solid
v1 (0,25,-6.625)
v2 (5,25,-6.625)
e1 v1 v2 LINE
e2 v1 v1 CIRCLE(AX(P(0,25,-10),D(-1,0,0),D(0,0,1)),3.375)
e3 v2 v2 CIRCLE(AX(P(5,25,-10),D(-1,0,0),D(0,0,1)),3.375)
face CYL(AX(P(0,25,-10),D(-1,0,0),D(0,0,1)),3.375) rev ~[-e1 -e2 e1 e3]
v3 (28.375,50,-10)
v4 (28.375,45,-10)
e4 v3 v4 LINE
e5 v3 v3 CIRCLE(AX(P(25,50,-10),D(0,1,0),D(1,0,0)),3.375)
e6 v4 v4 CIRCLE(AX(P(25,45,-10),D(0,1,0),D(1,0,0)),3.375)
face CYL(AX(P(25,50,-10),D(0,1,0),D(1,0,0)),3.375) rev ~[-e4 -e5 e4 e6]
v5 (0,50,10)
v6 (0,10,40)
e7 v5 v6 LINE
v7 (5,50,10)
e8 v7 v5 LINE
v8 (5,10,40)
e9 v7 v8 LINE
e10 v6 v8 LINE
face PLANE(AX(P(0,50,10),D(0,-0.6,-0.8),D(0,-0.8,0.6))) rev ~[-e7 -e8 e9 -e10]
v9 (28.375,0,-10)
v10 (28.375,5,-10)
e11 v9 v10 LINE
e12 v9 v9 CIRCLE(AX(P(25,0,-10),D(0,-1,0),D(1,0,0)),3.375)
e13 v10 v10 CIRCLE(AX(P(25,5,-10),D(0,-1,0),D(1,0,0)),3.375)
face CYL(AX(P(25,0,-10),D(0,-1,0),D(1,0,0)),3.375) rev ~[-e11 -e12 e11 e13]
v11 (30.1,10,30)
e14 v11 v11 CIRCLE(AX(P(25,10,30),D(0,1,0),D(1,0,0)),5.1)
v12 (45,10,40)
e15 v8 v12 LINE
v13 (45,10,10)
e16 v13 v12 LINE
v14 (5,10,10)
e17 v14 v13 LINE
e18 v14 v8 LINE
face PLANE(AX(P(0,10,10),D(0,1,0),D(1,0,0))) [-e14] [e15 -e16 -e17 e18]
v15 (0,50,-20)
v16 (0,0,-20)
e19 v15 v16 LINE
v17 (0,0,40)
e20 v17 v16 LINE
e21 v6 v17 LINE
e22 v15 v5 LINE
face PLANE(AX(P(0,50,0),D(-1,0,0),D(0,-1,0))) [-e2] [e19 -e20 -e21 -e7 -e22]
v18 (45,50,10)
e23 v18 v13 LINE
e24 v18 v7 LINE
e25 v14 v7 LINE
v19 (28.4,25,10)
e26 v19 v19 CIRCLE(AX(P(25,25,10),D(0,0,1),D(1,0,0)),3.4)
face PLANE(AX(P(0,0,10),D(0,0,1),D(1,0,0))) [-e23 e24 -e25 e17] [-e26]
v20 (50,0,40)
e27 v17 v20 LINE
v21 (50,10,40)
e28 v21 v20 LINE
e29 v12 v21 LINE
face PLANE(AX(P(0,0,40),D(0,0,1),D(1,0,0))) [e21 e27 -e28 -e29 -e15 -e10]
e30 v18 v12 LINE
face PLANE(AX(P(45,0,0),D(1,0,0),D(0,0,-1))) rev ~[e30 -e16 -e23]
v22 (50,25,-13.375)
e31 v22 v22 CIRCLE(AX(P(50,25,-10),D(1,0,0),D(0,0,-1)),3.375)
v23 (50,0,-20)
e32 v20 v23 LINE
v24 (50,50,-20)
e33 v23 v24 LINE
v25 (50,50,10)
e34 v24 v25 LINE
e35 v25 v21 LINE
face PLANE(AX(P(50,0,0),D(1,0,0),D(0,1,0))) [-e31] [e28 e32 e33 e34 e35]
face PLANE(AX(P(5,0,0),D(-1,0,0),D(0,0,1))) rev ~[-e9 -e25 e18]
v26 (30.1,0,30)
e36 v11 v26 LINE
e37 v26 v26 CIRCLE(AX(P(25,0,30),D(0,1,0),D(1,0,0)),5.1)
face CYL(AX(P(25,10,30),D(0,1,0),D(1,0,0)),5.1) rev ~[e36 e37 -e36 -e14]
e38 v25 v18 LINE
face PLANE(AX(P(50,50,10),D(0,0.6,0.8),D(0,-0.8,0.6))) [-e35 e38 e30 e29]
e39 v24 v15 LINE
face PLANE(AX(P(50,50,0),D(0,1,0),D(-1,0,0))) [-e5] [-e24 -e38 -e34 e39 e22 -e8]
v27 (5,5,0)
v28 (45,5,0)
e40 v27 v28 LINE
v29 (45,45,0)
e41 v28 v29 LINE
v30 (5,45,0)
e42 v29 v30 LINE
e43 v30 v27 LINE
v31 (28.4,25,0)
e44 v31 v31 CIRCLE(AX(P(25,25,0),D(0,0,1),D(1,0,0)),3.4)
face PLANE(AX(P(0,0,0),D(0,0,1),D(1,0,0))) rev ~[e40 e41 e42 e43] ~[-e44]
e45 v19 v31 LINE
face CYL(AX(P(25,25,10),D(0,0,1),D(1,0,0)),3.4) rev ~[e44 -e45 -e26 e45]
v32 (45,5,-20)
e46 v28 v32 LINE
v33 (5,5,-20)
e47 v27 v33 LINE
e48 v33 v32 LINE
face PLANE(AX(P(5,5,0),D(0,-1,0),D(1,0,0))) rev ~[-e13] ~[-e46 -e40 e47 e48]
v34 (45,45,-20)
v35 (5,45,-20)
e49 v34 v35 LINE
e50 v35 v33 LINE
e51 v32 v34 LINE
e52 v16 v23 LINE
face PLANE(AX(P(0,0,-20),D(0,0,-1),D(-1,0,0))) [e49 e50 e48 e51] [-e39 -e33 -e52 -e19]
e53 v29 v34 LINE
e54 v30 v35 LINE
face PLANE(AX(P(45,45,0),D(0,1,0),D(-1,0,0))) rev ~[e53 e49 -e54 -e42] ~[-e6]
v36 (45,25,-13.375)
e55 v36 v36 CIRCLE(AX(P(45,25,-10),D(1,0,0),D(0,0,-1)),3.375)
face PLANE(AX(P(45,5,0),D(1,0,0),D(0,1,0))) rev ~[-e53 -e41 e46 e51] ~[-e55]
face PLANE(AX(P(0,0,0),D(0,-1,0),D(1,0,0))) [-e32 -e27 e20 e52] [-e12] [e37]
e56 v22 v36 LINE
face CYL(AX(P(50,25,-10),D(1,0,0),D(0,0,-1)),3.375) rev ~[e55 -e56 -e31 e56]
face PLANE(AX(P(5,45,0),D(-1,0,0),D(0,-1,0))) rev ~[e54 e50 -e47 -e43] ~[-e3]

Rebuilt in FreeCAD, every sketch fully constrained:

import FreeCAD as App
import Part
import Sketcher

V = App.Vector
Q = App.Units.Quantity

doc = App.newDocument("Part")
body = doc.addObject("PartDesign::Body", "Body")

sketch1 = doc.addObject("Sketcher::SketchObject", "Sketch")
body.addObject(sketch1)
sketch1.AttachmentSupport = (doc.XY_Plane, [""])
sketch1.MapMode = "FlatFace"
sketch1.addGeometry([
    Part.LineSegment(V(0, 0, 0), V(50, 0, 0)),
    Part.LineSegment(V(50, 0, 0), V(50, 50, 0)),
    Part.LineSegment(V(50, 50, 0), V(0, 50, 0)),
    Part.LineSegment(V(0, 50, 0), V(0, 0, 0)),
], False)
sketch1.addConstraint([
    Sketcher.Constraint("Coincident", 0, 2, 1, 1),
    Sketcher.Constraint("Coincident", 1, 2, 2, 1),
    Sketcher.Constraint("Coincident", 2, 2, 3, 1),
    Sketcher.Constraint("Coincident", 3, 2, 0, 1),
    Sketcher.Constraint("Horizontal", 0),
    Sketcher.Constraint("Vertical", 1),
    Sketcher.Constraint("Horizontal", 2),
    Sketcher.Constraint("Vertical", 3),
    Sketcher.Constraint("Coincident", 3, 2, -1, 1),
    Sketcher.Constraint("Equal", 2, 1),
    Sketcher.Constraint("DistanceX", 0, 1, 0, 2, Q("50 mm")),
])
pad1 = doc.addObject("PartDesign::Pad", "Pad")
body.addObject(pad1)
pad1.Profile = sketch1
pad1.Length = 10

sketch2 = doc.addObject("Sketcher::SketchObject", "Sketch001")
body.addObject(sketch2)
sketch2.AttachmentSupport = (doc.XY_Plane, [""])
sketch2.MapMode = "FlatFace"
sketch2.AttachmentOffset = App.Placement(V(0, 0, 10), App.Rotation())
sketch2.addGeometry([
    Part.LineSegment(V(0, 10, 0), V(0, 0, 0)),
    Part.LineSegment(V(0, 0, 0), V(50, 0, 0)),
    Part.LineSegment(V(50, 0, 0), V(50, 10, 0)),
    Part.LineSegment(V(50, 10, 0), V(0, 10, 0)),
], False)
sketch2.addConstraint([
    Sketcher.Constraint("Coincident", 0, 2, 1, 1),
    Sketcher.Constraint("Coincident", 1, 2, 2, 1),
    Sketcher.Constraint("Coincident", 2, 2, 3, 1),
    Sketcher.Constraint("Coincident", 3, 2, 0, 1),
    Sketcher.Constraint("Vertical", 0),
    Sketcher.Constraint("Horizontal", 1),
    Sketcher.Constraint("Vertical", 2),
    Sketcher.Constraint("Horizontal", 3),
    Sketcher.Constraint("Coincident", 0, 2, -1, 1),
    Sketcher.Constraint("DistanceY", 0, 2, 0, 1, Q("10 mm")),
    Sketcher.Constraint("DistanceX", 1, 1, 1, 2, Q("50 mm")),
])
pad2 = doc.addObject("PartDesign::Pad", "Pad001")
body.addObject(pad2)
pad2.Profile = sketch2
pad2.Length = 30

sketch3 = doc.addObject("Sketcher::SketchObject", "Sketch002")
body.addObject(sketch3)
sketch3.AttachmentSupport = (doc.XY_Plane, [""])
sketch3.MapMode = "FlatFace"
sketch3.AttachmentOffset = App.Placement(V(0, 0, 10), App.Rotation())
sketch3.addGeometry(Part.Circle(V(25, 25, 0), V(0, 0, 1), 3.4), False)
sketch3.addConstraint([
    Sketcher.Constraint("Diameter", 0, Q("6.8 mm")),
    Sketcher.Constraint("DistanceX", -1, 1, 0, 3, Q("25 mm")),
    Sketcher.Constraint("DistanceY", -1, 1, 0, 3, Q("25 mm")),
])
pocket1 = doc.addObject("PartDesign::Pocket", "Pocket")
body.addObject(pocket1)
pocket1.Profile = sketch3
pocket1.Length = 10

sketch4 = doc.addObject("Sketcher::SketchObject", "Sketch003")
body.addObject(sketch4)
sketch4.AttachmentSupport = (doc.XZ_Plane, [""])
sketch4.MapMode = "FlatFace"
sketch4.AttachmentOffset = App.Placement(V(0, 0, -10), App.Rotation())
sketch4.addGeometry(Part.Circle(V(25, 30, 0), V(0, 0, 1), 5), False)
sketch4.addConstraint([
    Sketcher.Constraint("Diameter", 0, Q("10.2 mm")),
    Sketcher.Constraint("DistanceX", -1, 1, 0, 3, Q("25 mm")),
    Sketcher.Constraint("DistanceY", -1, 1, 0, 3, Q("30 mm")),
])
pocket2 = doc.addObject("PartDesign::Pocket", "Pocket001")
body.addObject(pocket2)
pocket2.Profile = sketch4
pocket2.Length = 10
pocket2.Reversed = True

sketch5 = doc.addObject("Sketcher::SketchObject", "Sketch004")
body.addObject(sketch5)
sketch5.AttachmentSupport = (doc.YZ_Plane, [""])
sketch5.MapMode = "FlatFace"
sketch5.addGeometry([
    Part.LineSegment(V(50, 10, 0), V(10, 10, 0)),
    Part.LineSegment(V(10, 10, 0), V(10, 40, 0)),
    Part.LineSegment(V(10, 40, 0), V(50, 10, 0)),
], False)
sketch5.addConstraint([
    Sketcher.Constraint("Coincident", 0, 2, 1, 1),
    Sketcher.Constraint("Coincident", 1, 2, 2, 1),
    Sketcher.Constraint("Coincident", 2, 2, 0, 1),
    Sketcher.Constraint("Horizontal", 0),
    Sketcher.Constraint("Vertical", 1),
    Sketcher.Constraint("DistanceX", 0, 2, 0, 1, Q("40 mm")),
    Sketcher.Constraint("DistanceY", 1, 1, 1, 2, Q("30 mm")),
    Sketcher.Constraint("DistanceX", -1, 1, 0, 2, Q("10 mm")),
    Sketcher.Constraint("DistanceY", -1, 1, 0, 2, Q("10 mm")),
])
pad3 = doc.addObject("PartDesign::Pad", "Pad002")
body.addObject(pad3)
pad3.Profile = sketch5
pad3.Length = 5

sketch6 = doc.addObject("Sketcher::SketchObject", "Sketch005")
body.addObject(sketch6)
sketch6.AttachmentSupport = (doc.YZ_Plane, [""])
sketch6.MapMode = "FlatFace"
sketch6.AttachmentOffset = App.Placement(V(0, 0, 50), App.Rotation())
sketch6.addGeometry([
    Part.LineSegment(V(10, 10, 0), V(50, 10, 0)),
    Part.LineSegment(V(50, 10, 0), V(10, 40, 0)),
    Part.LineSegment(V(10, 40, 0), V(10, 10, 0)),
], False)
sketch6.addConstraint([
    Sketcher.Constraint("Coincident", 0, 2, 1, 1),
    Sketcher.Constraint("Coincident", 1, 2, 2, 1),
    Sketcher.Constraint("Coincident", 2, 2, 0, 1),
    Sketcher.Constraint("Horizontal", 0),
    Sketcher.Constraint("Vertical", 2),
    Sketcher.Constraint("DistanceX", 0, 1, 0, 2, Q("40 mm")),
    Sketcher.Constraint("DistanceY", 2, 2, 2, 1, Q("30 mm")),
    Sketcher.Constraint("DistanceX", -1, 1, 0, 2, Q("50 mm")),
    Sketcher.Constraint("DistanceY", -1, 1, 0, 2, Q("10 mm")),
])
pad4 = doc.addObject("PartDesign::Pad", "Pad003")
body.addObject(pad4)
pad4.Profile = sketch6
pad4.Length = 5
pad4.Reversed = True

sketch7 = doc.addObject("Sketcher::SketchObject", "Sketch006")
body.addObject(sketch7)
sketch7.AttachmentSupport = (doc.XY_Plane, [""])
sketch7.MapMode = "FlatFace"
sketch7.addGeometry([
    Part.LineSegment(V(50, 50, 0), V(50, 0, 0)),
    Part.LineSegment(V(50, 0, 0), V(0, 0, 0)),
    Part.LineSegment(V(0, 0, 0), V(0, 50, 0)),
    Part.LineSegment(V(0, 50, 0), V(50, 50, 0)),
    Part.LineSegment(V(5, 45, 0), V(5, 5, 0)),
    Part.LineSegment(V(5, 5, 0), V(45, 5, 0)),
    Part.LineSegment(V(45, 5, 0), V(45, 45, 0)),
    Part.LineSegment(V(45, 45, 0), V(5, 45, 0)),
], False)
sketch7.addConstraint([
    Sketcher.Constraint("Coincident", 0, 2, 1, 1),
    Sketcher.Constraint("Coincident", 1, 2, 2, 1),
    Sketcher.Constraint("Coincident", 2, 2, 3, 1),
    Sketcher.Constraint("Coincident", 3, 2, 0, 1),
    Sketcher.Constraint("Coincident", 4, 2, 5, 1),
    Sketcher.Constraint("Coincident", 5, 2, 6, 1),
    Sketcher.Constraint("Coincident", 6, 2, 7, 1),
    Sketcher.Constraint("Coincident", 7, 2, 4, 1),
    Sketcher.Constraint("Vertical", 0),
    Sketcher.Constraint("Horizontal", 1),
    Sketcher.Constraint("Vertical", 2),
    Sketcher.Constraint("Horizontal", 3),
    Sketcher.Constraint("Vertical", 4),
    Sketcher.Constraint("Horizontal", 5),
    Sketcher.Constraint("Vertical", 6),
    Sketcher.Constraint("Horizontal", 7),
    Sketcher.Constraint("Coincident", 1, 2, -1, 1),
    Sketcher.Constraint("Equal", 3, 0),
    Sketcher.Constraint("Equal", 7, 4),
    Sketcher.Constraint("DistanceX", 1, 2, 1, 1, Q("50 mm")),
    Sketcher.Constraint("DistanceX", 5, 1, 5, 2, Q("40 mm")),
    Sketcher.Constraint("DistanceX", -1, 1, 4, 2, Q("5 mm")),
    Sketcher.Constraint("DistanceY", -1, 1, 4, 2, Q("5 mm")),
])
pad5 = doc.addObject("PartDesign::Pad", "Pad004")
body.addObject(pad5)
pad5.Profile = sketch7
pad5.Length = 20
pad5.Reversed = True

sketch8 = doc.addObject("Sketcher::SketchObject", "Sketch007")
body.addObject(sketch8)
sketch8.AttachmentSupport = (doc.XZ_Plane, [""])
sketch8.MapMode = "FlatFace"
sketch8.AttachmentOffset = App.Placement(V(0, 0, -50), App.Rotation())
sketch8.addGeometry(Part.Circle(V(25, -10, 0), V(0, 0, 1), 3.4), False)
sketch8.addConstraint([
    Sketcher.Constraint("Diameter", 0, Q("6.75 mm")),
    Sketcher.Constraint("DistanceX", -1, 1, 0, 3, Q("25 mm")),
    Sketcher.Constraint("DistanceY", 0, 3, -1, 1, Q("10 mm")),
])
pocket3 = doc.addObject("PartDesign::Pocket", "Pocket002")
body.addObject(pocket3)
pocket3.Profile = sketch8
pocket3.Length = 5
pocket3.Reversed = True

sketch9 = doc.addObject("Sketcher::SketchObject", "Sketch008")
body.addObject(sketch9)
sketch9.AttachmentSupport = (doc.YZ_Plane, [""])
sketch9.MapMode = "FlatFace"
sketch9.AttachmentOffset = App.Placement(V(0, 0, 50), App.Rotation())
sketch9.addGeometry(Part.Circle(V(25, -10, 0), V(0, 0, 1), 3.4), False)
sketch9.addConstraint([
    Sketcher.Constraint("Diameter", 0, Q("6.75 mm")),
    Sketcher.Constraint("DistanceX", -1, 1, 0, 3, Q("25 mm")),
    Sketcher.Constraint("DistanceY", 0, 3, -1, 1, Q("10 mm")),
])
pocket4 = doc.addObject("PartDesign::Pocket", "Pocket003")
body.addObject(pocket4)
pocket4.Profile = sketch9
pocket4.Length = 5

sketch10 = doc.addObject("Sketcher::SketchObject", "Sketch009")
body.addObject(sketch10)
sketch10.AttachmentSupport = (doc.XZ_Plane, [""])
sketch10.MapMode = "FlatFace"
sketch10.addGeometry(Part.Circle(V(25, -10, 0), V(0, 0, 1), 3.4), False)
sketch10.addConstraint([
    Sketcher.Constraint("Diameter", 0, Q("6.75 mm")),
    Sketcher.Constraint("DistanceX", -1, 1, 0, 3, Q("25 mm")),
    Sketcher.Constraint("DistanceY", 0, 3, -1, 1, Q("10 mm")),
])
pocket5 = doc.addObject("PartDesign::Pocket", "Pocket004")
body.addObject(pocket5)
pocket5.Profile = sketch10
pocket5.Length = 5

sketch11 = doc.addObject("Sketcher::SketchObject", "Sketch010")
body.addObject(sketch11)
sketch11.AttachmentSupport = (doc.YZ_Plane, [""])
sketch11.MapMode = "FlatFace"
sketch11.addGeometry(Part.Circle(V(25, -10, 0), V(0, 0, 1), 3.4), False)
sketch11.addConstraint([
    Sketcher.Constraint("Diameter", 0, Q("6.75 mm")),
    Sketcher.Constraint("DistanceX", -1, 1, 0, 3, Q("25 mm")),
    Sketcher.Constraint("DistanceY", 0, 3, -1, 1, Q("10 mm")),
])
pocket6 = doc.addObject("PartDesign::Pocket", "Pocket005")
body.addObject(pocket6)
pocket6.Profile = sketch11
pocket6.Length = 5
pocket6.Reversed = True

doc.recompute()
